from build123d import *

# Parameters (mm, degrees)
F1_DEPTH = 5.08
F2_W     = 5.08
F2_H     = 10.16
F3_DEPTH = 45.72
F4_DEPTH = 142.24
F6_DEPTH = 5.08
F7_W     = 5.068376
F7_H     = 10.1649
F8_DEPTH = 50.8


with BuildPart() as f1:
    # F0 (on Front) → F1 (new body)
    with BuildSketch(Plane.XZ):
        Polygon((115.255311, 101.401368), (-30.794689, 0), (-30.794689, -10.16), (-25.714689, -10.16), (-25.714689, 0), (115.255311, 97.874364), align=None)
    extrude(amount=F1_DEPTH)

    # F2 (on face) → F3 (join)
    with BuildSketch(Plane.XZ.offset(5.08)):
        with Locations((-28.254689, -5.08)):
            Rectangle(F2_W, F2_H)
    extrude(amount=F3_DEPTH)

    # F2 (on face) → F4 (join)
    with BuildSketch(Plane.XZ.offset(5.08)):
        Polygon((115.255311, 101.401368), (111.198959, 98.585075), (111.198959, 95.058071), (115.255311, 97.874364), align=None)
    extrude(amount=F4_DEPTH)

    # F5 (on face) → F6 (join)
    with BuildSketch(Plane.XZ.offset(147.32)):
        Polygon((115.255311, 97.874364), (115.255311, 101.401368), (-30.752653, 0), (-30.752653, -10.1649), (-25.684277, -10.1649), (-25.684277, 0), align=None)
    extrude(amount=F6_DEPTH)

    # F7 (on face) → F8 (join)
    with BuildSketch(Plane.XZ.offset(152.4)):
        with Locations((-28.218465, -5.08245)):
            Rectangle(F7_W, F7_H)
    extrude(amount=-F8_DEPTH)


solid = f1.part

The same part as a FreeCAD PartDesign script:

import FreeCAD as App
import Part
import Sketcher

V = App.Vector
Q = App.Units.Quantity

doc = App.newDocument("Part")
body = doc.addObject("PartDesign::Body", "Body")

# Sketch on XZ plane
sketch1 = body.newObject("Sketcher::SketchObject", "Sketch")
sketch1.AttachmentSupport = (doc.getObject("XZ_Plane"), [""])
sketch1.MapMode = "FlatFace"
sketch1.addGeometry(Part.LineSegment(V(115.3, 101.4, 0), V(-30.8, 0, 0)), False)
sketch1.addGeometry(Part.LineSegment(V(-30.8, 0, 0), V(-30.8, -10.2, 0)), False)
sketch1.addGeometry(Part.LineSegment(V(-30.8, -10.2, 0), V(-25.7, -10.2, 0)), False)
sketch1.addGeometry(Part.LineSegment(V(-25.7, -10.2, 0), V(-25.7, 0, 0)), False)
sketch1.addGeometry(Part.LineSegment(V(-25.7, 0, 0), V(115.3, 97.9, 0)), False)
sketch1.addGeometry(Part.LineSegment(V(115.3, 97.9, 0), V(115.3, 101.4, 0)), False)
sketch1.addConstraint(Sketcher.Constraint("Coincident", 0, 2, 1, 1))
sketch1.addConstraint(Sketcher.Constraint("Coincident", 1, 2, 2, 1))
sketch1.addConstraint(Sketcher.Constraint("Coincident", 2, 2, 3, 1))
sketch1.addConstraint(Sketcher.Constraint("Coincident", 3, 2, 4, 1))
sketch1.addConstraint(Sketcher.Constraint("Coincident", 4, 2, 5, 1))
sketch1.addConstraint(Sketcher.Constraint("Coincident", 5, 2, 0, 1))
sketch1.addConstraint(Sketcher.Constraint("Vertical", 1))
sketch1.addConstraint(Sketcher.Constraint("Horizontal", 2))
sketch1.addConstraint(Sketcher.Constraint("Vertical", 3))
sketch1.addConstraint(Sketcher.Constraint("Vertical", 5))
sketch1.addConstraint(Sketcher.Constraint("PointOnObject", 0, 2, -1))
sketch1.addConstraint(Sketcher.Constraint("PointOnObject", 3, 2, -1))
sketch1.addConstraint(Sketcher.Constraint("Parallel", 0, 4))
sketch1.addConstraint(Sketcher.Constraint("Distance", 0, Q("7 in")))
sketch1.addConstraint(Sketcher.Constraint("DistanceX", 2, 1, 2, 2, Q("0.2 in")))
sketch1.addConstraint(Sketcher.Constraint("DistanceY", 1, 2, 1, 1, Q("0.4 in")))
sketch1.addConstraint(Sketcher.Constraint("DistanceX", 3, 2, 4, 2, Q("5.55 in")))
sketch1.addConstraint(Sketcher.Constraint("DistanceX", 0, 2, -1, 1, 30.794689))
pad1 = body.newObject("PartDesign::Pad", "Pad")
pad1.Profile = sketch1
pad1.Length = Q("0.2 in")

# Sketch on XZ plane
sketch2 = body.newObject("Sketcher::SketchObject", "Sketch001")
sketch2.AttachmentSupport = (doc.getObject("XZ_Plane"), [""])
sketch2.MapMode = "FlatFace"
sketch2.AttachmentOffset = App.Placement(V(0, 0, 0.2 * 25.4), App.Rotation())
sketch2.addGeometry(Part.LineSegment(V(-31, 0, 0), V(-31, -10, 0)), False)
sketch2.addGeometry(Part.LineSegment(V(-31, -10, 0), V(-26, -10, 0)), False)
sketch2.addGeometry(Part.LineSegment(V(-26, -10, 0), V(-26, 0, 0)), False)
sketch2.addGeometry(Part.LineSegment(V(-26, 0, 0), V(-31, 0, 0)), False)
sketch2.addConstraint(Sketcher.Constraint("Coincident", 0, 2, 1, 1))
sketch2.addConstraint(Sketcher.Constraint("Coincident", 1, 2, 2, 1))
sketch2.addConstraint(Sketcher.Constraint("Coincident", 2, 2, 3, 1))
sketch2.addConstraint(Sketcher.Constraint("Coincident", 3, 2, 0, 1))
sketch2.addConstraint(Sketcher.Constraint("Vertical", 0))
sketch2.addConstraint(Sketcher.Constraint("Horizontal", 1))
sketch2.addConstraint(Sketcher.Constraint("Vertical", 2))
sketch2.addConstraint(Sketcher.Constraint("Horizontal", 3))
sketch2.addConstraint(Sketcher.Constraint("PointOnObject", 2, 2, -1))
sketch2.addConstraint(Sketcher.Constraint("DistanceX", 1, 1, 1, 2, Q("0.2 in")))
sketch2.addConstraint(Sketcher.Constraint("DistanceY", 0, 2, 0, 1, Q("0.4 in")))
sketch2.addConstraint(Sketcher.Constraint("DistanceX", 0, 2, -1, 1, 30.794689))
pad2 = body.newObject("PartDesign::Pad", "Pad001")
pad2.Profile = sketch2
pad2.Length = Q("1.8 in")

# Sketch on XZ plane
sketch3 = body.newObject("Sketcher::SketchObject", "Sketch002")
sketch3.AttachmentSupport = (doc.getObject("XZ_Plane"), [""])
sketch3.MapMode = "FlatFace"
sketch3.AttachmentOffset = App.Placement(V(0, 0, 0.2 * 25.4), App.Rotation())
sketch3.addGeometry(Part.LineSegment(V(115.3, 101.4, 0), V(111.2, 98.6, 0)), False)
sketch3.addGeometry(Part.LineSegment(V(111.2, 98.6, 0), V(111.2, 95.1, 0)), False)
sketch3.addGeometry(Part.LineSegment(V(111.2, 95.1, 0), V(115.3, 97.9, 0)), False)
sketch3.addGeometry(Part.LineSegment(V(115.3, 97.9, 0), V(115.3, 101.4, 0)), False)
sketch3.addConstraint(Sketcher.Constraint("Coincident", 0, 2, 1, 1))
sketch3.addConstraint(Sketcher.Constraint("Coincident", 1, 2, 2, 1))
sketch3.addConstraint(Sketcher.Constraint("Coincident", 2, 2, 3, 1))
sketch3.addConstraint(Sketcher.Constraint("Coincident", 3, 2, 0, 1))
sketch3.addConstraint(Sketcher.Constraint("Vertical", 1))
sketch3.addConstraint(Sketcher.Constraint("Vertical", 3))
sketch3.addConstraint(Sketcher.Constraint("Parallel", 0, 2))
sketch3.addConstraint(Sketcher.Constraint("DistanceY", 1, 2, 1, 1, 3.527004))
sketch3.addConstraint(Sketcher.Constraint("DistanceX", -1, 1, 0, 2, 111.198959))
sketch3.addConstraint(Sketcher.Constraint("DistanceY", -1, 1, 1, 2, 95.058071))
sketch3.addConstraint(Sketcher.Constraint("DistanceX", -1, 1, 2, 2, 115.255311))
sketch3.addConstraint(Sketcher.Constraint("DistanceY", -1, 1, 3, 2, 101.401368))
pad3 = body.newObject("PartDesign::Pad", "Pad002")
pad3.Profile = sketch3
pad3.Length = Q("5.6 in")

# Sketch on XZ plane
sketch4 = body.newObject("Sketcher::SketchObject", "Sketch003")
sketch4.AttachmentSupport = (doc.getObject("XZ_Plane"), [""])
sketch4.MapMode = "FlatFace"
sketch4.AttachmentOffset = App.Placement(V(0, 0, 5.8 * 25.4), App.Rotation())
sketch4.addGeometry(Part.LineSegment(V(115.3, 97.9, 0), V(115.3, 101.4, 0)), False)
sketch4.addGeometry(Part.LineSegment(V(115.3, 101.4, 0), V(-30.8, 0, 0)), False)
sketch4.addGeometry(Part.LineSegment(V(-30.8, 0, 0), V(-30.8, -10.2, 0)), False)
sketch4.addGeometry(Part.LineSegment(V(-30.8, -10.2, 0), V(-25.7, -10.2, 0)), False)
sketch4.addGeometry(Part.LineSegment(V(-25.7, -10.2, 0), V(-25.7, 0, 0)), False)
sketch4.addGeometry(Part.LineSegment(V(-25.7, 0, 0), V(115.3, 97.9, 0)), False)
sketch4.addConstraint(Sketcher.Constraint("Coincident", 0, 2, 1, 1))
sketch4.addConstraint(Sketcher.Constraint("Coincident", 1, 2, 2, 1))
sketch4.addConstraint(Sketcher.Constraint("Coincident", 2, 2, 3, 1))
sketch4.addConstraint(Sketcher.Constraint("Coincident", 3, 2, 4, 1))
sketch4.addConstraint(Sketcher.Constraint("Coincident", 4, 2, 5, 1))
sketch4.addConstraint(Sketcher.Constraint("Coincident", 5, 2, 0, 1))
sketch4.addConstraint(Sketcher.Constraint("Vertical", 0))
sketch4.addConstraint(Sketcher.Constraint("Vertical", 2))
sketch4.addConstraint(Sketcher.Constraint("Horizontal", 3))
sketch4.addConstraint(Sketcher.Constraint("Vertical", 4))
sketch4.addConstraint(Sketcher.Constraint("PointOnObject", 1, 2, -1))
sketch4.addConstraint(Sketcher.Constraint("PointOnObject", 4, 2, -1))
sketch4.addConstraint(Sketcher.Constraint("DistanceY", 2, 2, 2, 1, 10.1649))
sketch4.addConstraint(Sketcher.Constraint("Distance", 1, 177.765472))
sketch4.addConstraint(Sketcher.Constraint("Distance", 5, 171.590672))
sketch4.addConstraint(Sketcher.Constraint("DistanceX", 3, 1, 3, 2, 5.068376))
sketch4.addConstraint(Sketcher.Constraint("DistanceX", -1, 1, 0, 2, 115.255311))
sketch4.addConstraint(Sketcher.Constraint("DistanceY", -1, 1, 0, 2, 101.401368))
pad4 = body.newObject("PartDesign::Pad", "Pad003")
pad4.Profile = sketch4
pad4.Length = Q("0.2 in")

# Sketch on XZ plane
sketch5 = body.newObject("Sketcher::SketchObject", "Sketch004")
sketch5.AttachmentSupport = (doc.getObject("XZ_Plane"), [""])
sketch5.MapMode = "FlatFace"
sketch5.AttachmentOffset = App.Placement(V(0, 0, 6 * 25.4), App.Rotation())
sketch5.addGeometry(Part.LineSegment(V(-31, 0, 0), V(-31, -10, 0)), False)
sketch5.addGeometry(Part.LineSegment(V(-31, -10, 0), V(-26, -10, 0)), False)
sketch5.addGeometry(Part.LineSegment(V(-26, -10, 0), V(-26, 0, 0)), False)
sketch5.addGeometry(Part.LineSegment(V(-26, 0, 0), V(-31, 0, 0)), False)
sketch5.addConstraint(Sketcher.Constraint("Coincident", 0, 2, 1, 1))
sketch5.addConstraint(Sketcher.Constraint("Coincident", 1, 2, 2, 1))
sketch5.addConstraint(Sketcher.Constraint("Coincident", 2, 2, 3, 1))
sketch5.addConstraint(Sketcher.Constraint("Coincident", 3, 2, 0, 1))
sketch5.addConstraint(Sketcher.Constraint("Vertical", 0))
sketch5.addConstraint(Sketcher.Constraint("Horizontal", 1))
sketch5.addConstraint(Sketcher.Constraint("Vertical", 2))
sketch5.addConstraint(Sketcher.Constraint("Horizontal", 3))
sketch5.addConstraint(Sketcher.Constraint("PointOnObject", 2, 2, -1))
sketch5.addConstraint(Sketcher.Constraint("DistanceY", 0, 2, 0, 1, 10.1649))
sketch5.addConstraint(Sketcher.Constraint("DistanceX", 1, 1, 1, 2, 5.068376))
sketch5.addConstraint(Sketcher.Constraint("DistanceX", 0, 2, -1, 1, 30.752653))
pad5 = body.newObject("PartDesign::Pad", "Pad004")
pad5.Profile = sketch5
pad5.Length = Q("2 in")
pad5.Reversed = True

doc.recompute()
